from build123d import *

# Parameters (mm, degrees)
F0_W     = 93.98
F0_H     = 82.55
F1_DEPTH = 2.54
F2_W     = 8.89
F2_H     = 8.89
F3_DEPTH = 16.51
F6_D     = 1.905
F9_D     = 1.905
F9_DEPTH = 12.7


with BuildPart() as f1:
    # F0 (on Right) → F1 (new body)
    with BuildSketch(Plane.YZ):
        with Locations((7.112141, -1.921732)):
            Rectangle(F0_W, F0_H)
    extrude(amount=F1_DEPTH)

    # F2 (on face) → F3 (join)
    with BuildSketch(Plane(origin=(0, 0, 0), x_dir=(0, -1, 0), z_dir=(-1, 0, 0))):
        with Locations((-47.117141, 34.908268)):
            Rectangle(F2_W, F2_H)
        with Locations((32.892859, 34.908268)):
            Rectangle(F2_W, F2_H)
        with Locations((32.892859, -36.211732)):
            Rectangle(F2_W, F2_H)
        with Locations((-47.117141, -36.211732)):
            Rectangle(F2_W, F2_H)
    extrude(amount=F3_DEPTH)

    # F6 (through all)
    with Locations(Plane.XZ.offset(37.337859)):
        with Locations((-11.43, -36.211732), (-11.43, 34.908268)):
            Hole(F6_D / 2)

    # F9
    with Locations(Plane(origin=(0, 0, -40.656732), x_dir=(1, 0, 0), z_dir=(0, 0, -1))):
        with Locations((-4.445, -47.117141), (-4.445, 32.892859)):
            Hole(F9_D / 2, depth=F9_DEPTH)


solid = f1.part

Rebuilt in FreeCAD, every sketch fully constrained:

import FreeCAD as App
import Part
import Sketcher

V = App.Vector
Q = App.Units.Quantity

doc = App.newDocument("Part")
body = doc.addObject("PartDesign::Body", "Body")

sketch1 = body.newObject("Sketcher::SketchObject", "Sketch")
sketch1.AttachmentSupport = (doc.getObject("YZ_Plane"), [""])
sketch1.MapMode = "FlatFace"
sketch1.addGeometry([
    Part.LineSegment(V(-40, 39, 0), V(-40, -43, 0)),
    Part.LineSegment(V(-40, -43, 0), V(54, -43, 0)),
    Part.LineSegment(V(54, -43, 0), V(54, 39, 0)),
    Part.LineSegment(V(54, 39, 0), V(-40, 39, 0)),
], False)
sketch1.addConstraint([
    Sketcher.Constraint("Coincident", 0, 2, 1, 1),
    Sketcher.Constraint("Coincident", 1, 2, 2, 1),
    Sketcher.Constraint("Coincident", 2, 2, 3, 1),
    Sketcher.Constraint("Coincident", 3, 2, 0, 1),
    Sketcher.Constraint("Vertical", 0),
    Sketcher.Constraint("Horizontal", 1),
    Sketcher.Constraint("Vertical", 2),
    Sketcher.Constraint("Horizontal", 3),
    Sketcher.Constraint("DistanceX", 1, 1, 1, 2, Q("3.7 in")),
    Sketcher.Constraint("DistanceY", 0, 2, 0, 1, Q("3.25 in")),
    Sketcher.Constraint("DistanceX", 0, 2, -1, 1, Q("39.877859 mm")),
    Sketcher.Constraint("DistanceY", 0, 2, -1, 1, Q("43.196732 mm")),
])
pad1 = body.newObject("PartDesign::Pad", "Pad")
pad1.Profile = sketch1
pad1.Length = Q("0.1 in")

sketch2 = body.newObject("Sketcher::SketchObject", "Sketch001")
sketch2.AttachmentSupport = (doc.getObject("YZ_Plane"), [""])
sketch2.MapMode = "FlatFace"
sketch2.addGeometry([
    Part.LineSegment(V(52, 39, 0), V(52, 30, 0)),
    Part.LineSegment(V(52, 30, 0), V(43, 30, 0)),
    Part.LineSegment(V(43, 30, 0), V(43, 39, 0)),
    Part.LineSegment(V(43, 39, 0), V(52, 39, 0)),
    Part.LineSegment(V(-28, 39, 0), V(-28, 30, 0)),
    Part.LineSegment(V(-28, 30, 0), V(-37, 30, 0)),
    Part.LineSegment(V(-37, 30, 0), V(-37, 39, 0)),
    Part.LineSegment(V(-37, 39, 0), V(-28, 39, 0)),
    Part.LineSegment(V(-28, -32, 0), V(-28, -41, 0)),
    Part.LineSegment(V(-28, -41, 0), V(-37, -41, 0)),
    Part.LineSegment(V(-37, -41, 0), V(-37, -32, 0)),
    Part.LineSegment(V(-37, -32, 0), V(-28, -32, 0)),
    Part.LineSegment(V(52, -32, 0), V(52, -41, 0)),
    Part.LineSegment(V(52, -41, 0), V(43, -41, 0)),
    Part.LineSegment(V(43, -41, 0), V(43, -32, 0)),
    Part.LineSegment(V(43, -32, 0), V(52, -32, 0)),
], False)
sketch2.addConstraint([
    Sketcher.Constraint("Coincident", 0, 2, 1, 1),
    Sketcher.Constraint("Coincident", 1, 2, 2, 1),
    Sketcher.Constraint("Coincident", 2, 2, 3, 1),
    Sketcher.Constraint("Coincident", 3, 2, 0, 1),
    Sketcher.Constraint("Coincident", 4, 2, 5, 1),
    Sketcher.Constraint("Coincident", 5, 2, 6, 1),
    Sketcher.Constraint("Coincident", 6, 2, 7, 1),
    Sketcher.Constraint("Coincident", 7, 2, 4, 1),
    Sketcher.Constraint("Coincident", 8, 2, 9, 1),
    Sketcher.Constraint("Coincident", 9, 2, 10, 1),
    Sketcher.Constraint("Coincident", 10, 2, 11, 1),
    Sketcher.Constraint("Coincident", 11, 2, 8, 1),
    Sketcher.Constraint("Coincident", 12, 2, 13, 1),
    Sketcher.Constraint("Coincident", 13, 2, 14, 1),
    Sketcher.Constraint("Coincident", 14, 2, 15, 1),
    Sketcher.Constraint("Coincident", 15, 2, 12, 1),
    Sketcher.Constraint("Vertical", 0),
    Sketcher.Constraint("Horizontal", 1),
    Sketcher.Constraint("Vertical", 2),
    Sketcher.Constraint("Horizontal", 3),
    Sketcher.Constraint("Vertical", 4),
    Sketcher.Constraint("Horizontal", 5),
    Sketcher.Constraint("Vertical", 6),
    Sketcher.Constraint("Horizontal", 7),
    Sketcher.Constraint("Vertical", 8),
    Sketcher.Constraint("Horizontal", 9),
    Sketcher.Constraint("Vertical", 10),
    Sketcher.Constraint("Horizontal", 11),
    Sketcher.Constraint("Vertical", 12),
    Sketcher.Constraint("Horizontal", 13),
    Sketcher.Constraint("Vertical", 14),
    Sketcher.Constraint("Horizontal", 15),
    Sketcher.Constraint("Horizontal", 1, 2, 4, 2),
    Sketcher.Constraint("Horizontal", 3, 2, 6, 2),
    Sketcher.Constraint("Horizontal", 9, 2, 12, 2),
    Sketcher.Constraint("Horizontal", 11, 2, 14, 2),
    Sketcher.Constraint("Vertical", 7, 2, 8, 2),
    Sketcher.Constraint("Vertical", 6, 2, 9, 2),
    Sketcher.Constraint("Vertical", 3, 2, 12, 2),
    Sketcher.Constraint("Vertical", 2, 2, 13, 2),
    Sketcher.Constraint("Equal", 3, 5),
    Sketcher.Constraint("Equal", 15, 0),
    Sketcher.Constraint("Equal", 6, 8),
    Sketcher.Constraint("DistanceX", 1, 2, 1, 1, Q("0.35 in")),
    Sketcher.Constraint("DistanceX", 4, 2, 1, 2, Q("2.8 in")),
    Sketcher.Constraint("DistanceY", 8, 2, 4, 2, Q("2.8 in")),
    Sketcher.Constraint("DistanceX", -1, 1, 0, 2, Q("51.562141 mm")),
    Sketcher.Constraint("DistanceY", 8, 2, -1, 1, Q("40.656732 mm")),
])
pad2 = body.newObject("PartDesign::Pad", "Pad001")
pad2.Profile = sketch2
pad2.Length = Q("0.65 in")
pad2.Reversed = True

sketch3 = body.newObject("Sketcher::SketchObject", "Sketch002")
sketch3.AttachmentSupport = (doc.getObject("XZ_Plane"), [""])
sketch3.MapMode = "FlatFace"
sketch3.AttachmentOffset = App.Placement(V(0, 0, 37.337859), App.Rotation())
sketch3.addGeometry([
    Part.Circle(V(-11.4, -36.2, 0), V(0, 0, 1), 1),
    Part.Circle(V(-11.4, 34.9, 0), V(0, 0, 1), 1),
], False)
sketch3.addConstraint([
    Sketcher.Constraint("Equal", 0, 1),
    Sketcher.Constraint("Vertical", 0, 3, 1, 3),
    Sketcher.Constraint("Diameter", 0, Q("0.075 in")),
    Sketcher.Constraint("DistanceY", 0, 3, 1, 3, Q("2.8 in")),
    Sketcher.Constraint("DistanceX", 0, 3, -1, 1, Q("0.45 in")),
    Sketcher.Constraint("DistanceY", 0, 3, -1, 1, Q("36.211732 mm")),
])
doc.recompute()
hole = body.newObject("PartDesign::Hole", "Hole")
hole.Profile = sketch3
hole.ThreadType = "None"
hole.Diameter = Q("0.075 in")
hole.DepthType = "ThroughAll"

sketch4 = body.newObject("Sketcher::SketchObject", "Sketch003")
sketch4.AttachmentSupport = (doc.getObject("XY_Plane"), [""])
sketch4.MapMode = "FlatFace"
sketch4.AttachmentOffset = App.Placement(V(0, 0, -40.656732), App.Rotation())
sketch4.addGeometry([
    Part.Circle(V(-4.4, 47.1, 0), V(0, 0, 1), 1),
    Part.Circle(V(-4.4, -32.9, 0), V(0, 0, 1), 1),
], False)
sketch4.addConstraint([
    Sketcher.Constraint("Equal", 0, 1),
    Sketcher.Constraint("Vertical", 0, 3, 1, 3),
    Sketcher.Constraint("Diameter", 0, Q("0.075 in")),
    Sketcher.Constraint("DistanceY", 1, 3, 0, 3, Q("3.15 in")),
    Sketcher.Constraint("DistanceX", 0, 3, -1, 1, Q("0.175 in")),
    Sketcher.Constraint("DistanceY", -1, 1, 0, 3, Q("47.117141 mm")),
])
doc.recompute()
hole2 = body.newObject("PartDesign::Hole", "Hole001")
hole2.Profile = sketch4
hole2.ThreadType = "None"
hole2.Diameter = Q("0.075 in")
hole2.DepthType = "Dimension"
hole2.Depth = Q("0.5 in")
hole2.DrillPoint = "Flat"
hole2.Reversed = True

doc.recompute()
